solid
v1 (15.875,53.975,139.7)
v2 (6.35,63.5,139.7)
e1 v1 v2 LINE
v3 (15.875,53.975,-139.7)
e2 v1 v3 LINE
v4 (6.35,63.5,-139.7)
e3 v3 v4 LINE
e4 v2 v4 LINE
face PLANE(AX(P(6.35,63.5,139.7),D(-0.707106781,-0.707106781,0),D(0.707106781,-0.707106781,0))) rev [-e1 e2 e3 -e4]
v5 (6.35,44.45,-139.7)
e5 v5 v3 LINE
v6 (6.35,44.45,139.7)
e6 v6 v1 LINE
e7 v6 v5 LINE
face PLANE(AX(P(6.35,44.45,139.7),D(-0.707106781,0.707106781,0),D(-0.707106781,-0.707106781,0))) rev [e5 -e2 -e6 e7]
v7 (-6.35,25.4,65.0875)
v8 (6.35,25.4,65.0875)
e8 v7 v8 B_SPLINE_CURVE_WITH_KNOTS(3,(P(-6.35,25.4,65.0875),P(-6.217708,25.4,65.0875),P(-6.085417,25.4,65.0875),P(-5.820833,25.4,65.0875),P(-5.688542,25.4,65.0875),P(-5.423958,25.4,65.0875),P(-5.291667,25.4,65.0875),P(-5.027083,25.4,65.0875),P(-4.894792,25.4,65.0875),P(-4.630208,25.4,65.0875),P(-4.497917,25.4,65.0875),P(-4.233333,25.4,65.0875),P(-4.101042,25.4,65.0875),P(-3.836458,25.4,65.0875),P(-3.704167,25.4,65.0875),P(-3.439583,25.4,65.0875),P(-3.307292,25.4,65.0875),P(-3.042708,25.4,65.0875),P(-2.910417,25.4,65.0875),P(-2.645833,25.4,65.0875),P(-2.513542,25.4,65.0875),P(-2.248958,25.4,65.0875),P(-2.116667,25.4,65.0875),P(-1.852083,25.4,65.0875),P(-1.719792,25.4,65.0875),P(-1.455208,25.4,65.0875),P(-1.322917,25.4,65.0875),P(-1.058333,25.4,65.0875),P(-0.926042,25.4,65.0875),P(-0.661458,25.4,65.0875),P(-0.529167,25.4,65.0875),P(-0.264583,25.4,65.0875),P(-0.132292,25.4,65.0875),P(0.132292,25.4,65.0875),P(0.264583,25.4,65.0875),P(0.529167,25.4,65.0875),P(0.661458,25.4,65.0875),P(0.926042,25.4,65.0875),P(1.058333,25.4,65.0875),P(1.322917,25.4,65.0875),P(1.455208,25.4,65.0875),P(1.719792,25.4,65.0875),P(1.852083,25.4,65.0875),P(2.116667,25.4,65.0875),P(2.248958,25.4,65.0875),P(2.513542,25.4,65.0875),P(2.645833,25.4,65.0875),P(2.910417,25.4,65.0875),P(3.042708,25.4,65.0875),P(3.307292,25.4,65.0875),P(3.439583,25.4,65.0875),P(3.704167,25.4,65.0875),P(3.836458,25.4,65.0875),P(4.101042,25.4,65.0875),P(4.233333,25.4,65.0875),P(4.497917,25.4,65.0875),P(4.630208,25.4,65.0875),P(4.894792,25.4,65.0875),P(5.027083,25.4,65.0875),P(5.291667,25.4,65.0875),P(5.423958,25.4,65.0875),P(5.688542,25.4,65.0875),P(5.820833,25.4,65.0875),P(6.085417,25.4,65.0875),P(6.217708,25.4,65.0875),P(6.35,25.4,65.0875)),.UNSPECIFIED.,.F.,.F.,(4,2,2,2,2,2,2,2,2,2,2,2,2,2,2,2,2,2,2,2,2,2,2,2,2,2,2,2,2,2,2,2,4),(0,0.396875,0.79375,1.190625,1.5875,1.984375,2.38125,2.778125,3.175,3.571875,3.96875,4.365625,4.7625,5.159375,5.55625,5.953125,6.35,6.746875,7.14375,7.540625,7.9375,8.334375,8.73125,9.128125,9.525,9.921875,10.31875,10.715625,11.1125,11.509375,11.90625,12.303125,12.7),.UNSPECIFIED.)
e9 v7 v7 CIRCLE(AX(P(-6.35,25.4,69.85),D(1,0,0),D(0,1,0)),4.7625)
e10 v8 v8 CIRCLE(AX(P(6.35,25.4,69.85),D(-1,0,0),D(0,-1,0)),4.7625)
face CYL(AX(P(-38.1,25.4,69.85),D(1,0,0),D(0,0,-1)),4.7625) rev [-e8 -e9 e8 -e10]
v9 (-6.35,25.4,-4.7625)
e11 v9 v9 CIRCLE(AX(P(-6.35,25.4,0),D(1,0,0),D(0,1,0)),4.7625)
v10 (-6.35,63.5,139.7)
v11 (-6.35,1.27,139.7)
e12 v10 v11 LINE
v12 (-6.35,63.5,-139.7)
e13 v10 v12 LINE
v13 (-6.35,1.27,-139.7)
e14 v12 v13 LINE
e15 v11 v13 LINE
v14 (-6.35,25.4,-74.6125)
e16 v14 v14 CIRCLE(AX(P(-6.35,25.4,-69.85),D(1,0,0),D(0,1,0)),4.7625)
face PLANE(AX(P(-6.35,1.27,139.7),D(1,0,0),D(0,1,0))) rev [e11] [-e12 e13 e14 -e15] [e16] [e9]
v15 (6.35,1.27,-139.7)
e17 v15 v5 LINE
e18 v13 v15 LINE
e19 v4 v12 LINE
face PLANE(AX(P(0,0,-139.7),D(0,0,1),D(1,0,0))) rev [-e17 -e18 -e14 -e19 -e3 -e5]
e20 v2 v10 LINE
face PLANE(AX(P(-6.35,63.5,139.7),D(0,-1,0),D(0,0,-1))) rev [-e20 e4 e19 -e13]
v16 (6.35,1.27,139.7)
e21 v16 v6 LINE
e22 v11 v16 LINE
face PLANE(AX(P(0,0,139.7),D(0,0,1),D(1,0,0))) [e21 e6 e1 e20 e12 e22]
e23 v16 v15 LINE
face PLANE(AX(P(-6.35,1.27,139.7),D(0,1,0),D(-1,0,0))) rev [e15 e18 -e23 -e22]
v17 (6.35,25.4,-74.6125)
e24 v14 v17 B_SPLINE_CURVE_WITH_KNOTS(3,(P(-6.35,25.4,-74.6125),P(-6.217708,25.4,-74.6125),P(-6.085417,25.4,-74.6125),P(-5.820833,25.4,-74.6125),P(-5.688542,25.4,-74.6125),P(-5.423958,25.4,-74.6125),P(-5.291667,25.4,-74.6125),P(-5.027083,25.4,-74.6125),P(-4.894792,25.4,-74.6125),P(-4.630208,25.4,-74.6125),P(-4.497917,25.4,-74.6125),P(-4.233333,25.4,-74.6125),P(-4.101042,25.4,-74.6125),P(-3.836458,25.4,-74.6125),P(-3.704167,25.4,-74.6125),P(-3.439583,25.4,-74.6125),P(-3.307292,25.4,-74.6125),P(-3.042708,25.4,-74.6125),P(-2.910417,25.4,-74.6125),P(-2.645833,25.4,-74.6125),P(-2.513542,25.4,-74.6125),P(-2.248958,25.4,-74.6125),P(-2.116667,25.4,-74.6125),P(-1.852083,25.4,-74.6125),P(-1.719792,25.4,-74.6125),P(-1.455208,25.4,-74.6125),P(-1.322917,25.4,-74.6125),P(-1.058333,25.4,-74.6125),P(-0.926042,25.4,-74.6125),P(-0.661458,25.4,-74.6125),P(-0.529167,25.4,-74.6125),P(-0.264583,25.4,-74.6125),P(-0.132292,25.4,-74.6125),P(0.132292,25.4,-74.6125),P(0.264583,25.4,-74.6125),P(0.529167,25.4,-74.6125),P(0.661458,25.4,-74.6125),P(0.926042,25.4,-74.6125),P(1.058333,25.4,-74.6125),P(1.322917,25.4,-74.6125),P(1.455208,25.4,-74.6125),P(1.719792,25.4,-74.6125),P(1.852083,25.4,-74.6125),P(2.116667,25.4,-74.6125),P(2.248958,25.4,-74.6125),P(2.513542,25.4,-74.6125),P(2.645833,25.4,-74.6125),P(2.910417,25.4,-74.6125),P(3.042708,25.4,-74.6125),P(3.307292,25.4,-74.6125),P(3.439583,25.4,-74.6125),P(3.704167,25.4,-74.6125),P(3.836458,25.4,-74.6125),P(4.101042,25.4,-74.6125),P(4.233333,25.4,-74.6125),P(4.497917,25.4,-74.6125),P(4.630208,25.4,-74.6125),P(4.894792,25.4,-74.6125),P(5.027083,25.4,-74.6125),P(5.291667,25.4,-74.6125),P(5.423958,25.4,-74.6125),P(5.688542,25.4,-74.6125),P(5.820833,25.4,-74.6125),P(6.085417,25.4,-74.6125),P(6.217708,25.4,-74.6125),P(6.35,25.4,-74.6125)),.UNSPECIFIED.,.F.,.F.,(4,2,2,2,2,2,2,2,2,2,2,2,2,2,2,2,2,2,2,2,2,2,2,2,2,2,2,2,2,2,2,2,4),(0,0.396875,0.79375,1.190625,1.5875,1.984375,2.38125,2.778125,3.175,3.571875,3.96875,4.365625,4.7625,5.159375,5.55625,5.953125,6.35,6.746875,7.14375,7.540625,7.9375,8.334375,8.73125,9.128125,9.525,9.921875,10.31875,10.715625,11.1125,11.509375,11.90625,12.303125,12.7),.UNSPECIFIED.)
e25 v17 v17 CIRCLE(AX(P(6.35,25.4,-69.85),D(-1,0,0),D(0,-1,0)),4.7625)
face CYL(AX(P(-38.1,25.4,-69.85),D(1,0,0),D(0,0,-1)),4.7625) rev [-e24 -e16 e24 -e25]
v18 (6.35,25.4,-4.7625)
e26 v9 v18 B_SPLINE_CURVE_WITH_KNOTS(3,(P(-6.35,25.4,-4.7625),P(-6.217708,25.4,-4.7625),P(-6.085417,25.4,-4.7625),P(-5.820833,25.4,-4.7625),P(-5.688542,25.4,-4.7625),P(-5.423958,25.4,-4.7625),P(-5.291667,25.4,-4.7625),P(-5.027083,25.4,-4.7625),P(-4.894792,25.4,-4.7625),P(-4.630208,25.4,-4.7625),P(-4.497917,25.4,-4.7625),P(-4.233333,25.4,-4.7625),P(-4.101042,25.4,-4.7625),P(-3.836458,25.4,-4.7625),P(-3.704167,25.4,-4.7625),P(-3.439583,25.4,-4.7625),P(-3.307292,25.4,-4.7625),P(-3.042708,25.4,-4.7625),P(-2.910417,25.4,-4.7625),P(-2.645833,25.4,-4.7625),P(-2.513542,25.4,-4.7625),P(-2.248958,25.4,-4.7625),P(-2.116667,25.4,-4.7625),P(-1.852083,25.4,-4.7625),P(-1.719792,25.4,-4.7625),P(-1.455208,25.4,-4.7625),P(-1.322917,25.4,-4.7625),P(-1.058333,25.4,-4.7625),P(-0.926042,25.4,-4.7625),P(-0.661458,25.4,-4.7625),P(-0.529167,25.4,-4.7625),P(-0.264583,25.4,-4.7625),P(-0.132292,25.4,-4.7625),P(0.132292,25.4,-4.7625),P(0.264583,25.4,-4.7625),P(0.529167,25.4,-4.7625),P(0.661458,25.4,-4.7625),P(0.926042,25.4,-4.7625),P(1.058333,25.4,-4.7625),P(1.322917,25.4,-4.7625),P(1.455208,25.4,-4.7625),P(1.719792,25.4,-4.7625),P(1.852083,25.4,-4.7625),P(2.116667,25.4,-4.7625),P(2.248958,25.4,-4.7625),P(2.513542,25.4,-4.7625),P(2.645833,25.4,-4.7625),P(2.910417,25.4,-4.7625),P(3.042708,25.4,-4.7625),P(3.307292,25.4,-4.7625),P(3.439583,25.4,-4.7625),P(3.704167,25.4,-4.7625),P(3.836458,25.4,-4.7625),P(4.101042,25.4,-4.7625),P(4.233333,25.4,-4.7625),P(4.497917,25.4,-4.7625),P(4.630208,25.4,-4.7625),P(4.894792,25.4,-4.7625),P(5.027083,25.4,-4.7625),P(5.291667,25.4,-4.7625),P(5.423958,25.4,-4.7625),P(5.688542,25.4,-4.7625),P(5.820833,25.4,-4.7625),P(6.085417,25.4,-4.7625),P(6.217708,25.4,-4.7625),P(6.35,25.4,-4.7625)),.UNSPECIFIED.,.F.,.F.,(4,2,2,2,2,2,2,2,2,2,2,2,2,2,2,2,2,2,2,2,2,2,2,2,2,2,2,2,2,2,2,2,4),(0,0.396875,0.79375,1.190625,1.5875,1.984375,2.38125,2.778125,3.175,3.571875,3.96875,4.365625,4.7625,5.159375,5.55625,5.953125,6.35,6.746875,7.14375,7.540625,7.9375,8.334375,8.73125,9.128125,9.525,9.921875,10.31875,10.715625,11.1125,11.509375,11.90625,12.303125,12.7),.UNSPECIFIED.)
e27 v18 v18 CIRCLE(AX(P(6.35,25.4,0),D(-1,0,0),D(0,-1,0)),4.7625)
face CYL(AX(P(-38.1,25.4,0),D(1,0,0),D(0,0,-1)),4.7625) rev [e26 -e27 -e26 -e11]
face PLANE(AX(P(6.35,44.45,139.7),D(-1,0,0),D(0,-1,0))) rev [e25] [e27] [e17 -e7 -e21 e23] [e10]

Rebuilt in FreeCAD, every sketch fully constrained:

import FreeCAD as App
import Part
import Sketcher

V = App.Vector
Q = App.Units.Quantity

doc = App.newDocument("Part")
params = doc.addObject("Spreadsheet::Sheet", "Params")
for row, (alias, value) in enumerate([
    ("sketch1_width", "0.5 in"),
    ("sketch1_height", "1.7 in"),
    ("sketch1_height2", "2.45 in"),
    ("pad1_length", "11 in"),
    ("sketch2_diameter", "0.375 in"),
    ("pocket1_length", "3 in"),
], start=1):
    params.set(f"A{row}", alias)
    params.set(f"B{row}", "=" + value)
    params.setAlias(f"B{row}", alias)

body = doc.addObject("PartDesign::Body", "Body")

sketch1 = doc.addObject("Sketcher::SketchObject", "Sketch")
body.addObject(sketch1)
sketch1.AttachmentSupport = (doc.XY_Plane, [""])
sketch1.MapMode = "FlatFace"
sketch1.addGeometry(Part.LineSegment(V(15.875, 53.975, 0), V(6.35, 63.5, 0)), False)
sketch1.addGeometry(Part.LineSegment(V(6.35, 63.5, 0), V(-6.35, 63.5, 0)), False)
sketch1.addGeometry(Part.LineSegment(V(-6.35, 63.5, 0), V(-6.35, 1.27, 0)), False)
sketch1.addGeometry(Part.LineSegment(V(-6.35, 1.27, 0), V(6.35, 1.27, 0)), False)
sketch1.addGeometry(Part.LineSegment(V(6.35, 1.27, 0), V(6.35, 44.45, 0)), False)
sketch1.addGeometry(Part.LineSegment(V(6.35, 44.45, 0), V(15.875, 53.975, 0)), False)
sketch1.addConstraint(Sketcher.Constraint("Coincident", 0, 2, 1, 1))
sketch1.addConstraint(Sketcher.Constraint("Coincident", 1, 2, 2, 1))
sketch1.addConstraint(Sketcher.Constraint("Coincident", 2, 2, 3, 1))
sketch1.addConstraint(Sketcher.Constraint("Coincident", 3, 2, 4, 1))
sketch1.addConstraint(Sketcher.Constraint("Coincident", 4, 2, 5, 1))
sketch1.addConstraint(Sketcher.Constraint("Coincident", 5, 2, 0, 1))
sketch1.addConstraint(Sketcher.Constraint("Horizontal", 1))
sketch1.addConstraint(Sketcher.Constraint("Vertical", 2))
sketch1.addConstraint(Sketcher.Constraint("Horizontal", 3))
sketch1.addConstraint(Sketcher.Constraint("Vertical", 4))
sketch1.addConstraint(Sketcher.Constraint("Perpendicular", 0, 5))
sketch1.addConstraint(Sketcher.Constraint("Vertical", 0, 2, 3, 2))
sketch1.addConstraint(Sketcher.Constraint("Equal", 0, 5))
sketch1.addConstraint(Sketcher.Constraint("DistanceX", 1, 2, 1, 1, Q("0.5 in")))
sketch1.addConstraint(Sketcher.Constraint("DistanceY", 4, 1, 4, 2, Q("1.7 in")))
sketch1.addConstraint(Sketcher.Constraint("DistanceY", 2, 2, 2, 1, Q("2.45 in")))
sketch1.addConstraint(Sketcher.Constraint("DistanceY", -1, 1, 0, 2, Q("2.5 in")))
sketch1.addConstraint(Sketcher.Constraint("DistanceX", -1, 1, 0, 2, Q("0.25 in")))
sketch1.setExpression("Constraints[13]", "Params.sketch1_width")
sketch1.setExpression("Constraints[14]", "Params.sketch1_height")
sketch1.setExpression("Constraints[15]", "Params.sketch1_height2")
pad1 = doc.addObject("PartDesign::Pad", "Pad")
body.addObject(pad1)
pad1.Profile = sketch1
pad1.setExpression("Length", "Params.pad1_length")
pad1.Midplane = True

sketch2 = doc.addObject("Sketcher::SketchObject", "Sketch001")
body.addObject(sketch2)
sketch2.AttachmentSupport = (doc.YZ_Plane, [""])
sketch2.MapMode = "FlatFace"
sketch2.addGeometry(Part.Circle(V(25.4, 69.85, 0), V(0, 0, 1), 4.7625), False)
sketch2.addGeometry(Part.Circle(V(25.4, 0, 0), V(0, 0, 1), 4.7625), False)
sketch2.addGeometry(Part.Circle(V(25.4, -69.85, 0), V(0, 0, 1), 4.7625), False)
sketch2.addConstraint(Sketcher.Constraint("Equal", 0, 1))
sketch2.addConstraint(Sketcher.Constraint("Equal", 1, 2))
sketch2.addConstraint(Sketcher.Constraint("Symmetric", 0, 3, 2, 3, -1))
sketch2.addConstraint(Sketcher.Constraint("PointOnObject", 1, 3, -1))
sketch2.addConstraint(Sketcher.Constraint("Vertical", 0, 3, 1, 3))
sketch2.addConstraint(Sketcher.Constraint("Diameter", 0, Q("0.375 in")))
sketch2.addConstraint(Sketcher.Constraint("DistanceX", -1, 1, 0, 3, Q("1 in")))
sketch2.addConstraint(Sketcher.Constraint("DistanceY", 2, 3, 0, 3, Q("5.5 in")))
sketch2.setExpression("Constraints[5]", "Params.sketch2_diameter")
pocket1 = doc.addObject("PartDesign::Pocket", "Pocket")
body.addObject(pocket1)
pocket1.Profile = sketch2
pocket1.setExpression("Length", "Params.pocket1_length")
pocket1.Midplane = True

doc.recompute()
